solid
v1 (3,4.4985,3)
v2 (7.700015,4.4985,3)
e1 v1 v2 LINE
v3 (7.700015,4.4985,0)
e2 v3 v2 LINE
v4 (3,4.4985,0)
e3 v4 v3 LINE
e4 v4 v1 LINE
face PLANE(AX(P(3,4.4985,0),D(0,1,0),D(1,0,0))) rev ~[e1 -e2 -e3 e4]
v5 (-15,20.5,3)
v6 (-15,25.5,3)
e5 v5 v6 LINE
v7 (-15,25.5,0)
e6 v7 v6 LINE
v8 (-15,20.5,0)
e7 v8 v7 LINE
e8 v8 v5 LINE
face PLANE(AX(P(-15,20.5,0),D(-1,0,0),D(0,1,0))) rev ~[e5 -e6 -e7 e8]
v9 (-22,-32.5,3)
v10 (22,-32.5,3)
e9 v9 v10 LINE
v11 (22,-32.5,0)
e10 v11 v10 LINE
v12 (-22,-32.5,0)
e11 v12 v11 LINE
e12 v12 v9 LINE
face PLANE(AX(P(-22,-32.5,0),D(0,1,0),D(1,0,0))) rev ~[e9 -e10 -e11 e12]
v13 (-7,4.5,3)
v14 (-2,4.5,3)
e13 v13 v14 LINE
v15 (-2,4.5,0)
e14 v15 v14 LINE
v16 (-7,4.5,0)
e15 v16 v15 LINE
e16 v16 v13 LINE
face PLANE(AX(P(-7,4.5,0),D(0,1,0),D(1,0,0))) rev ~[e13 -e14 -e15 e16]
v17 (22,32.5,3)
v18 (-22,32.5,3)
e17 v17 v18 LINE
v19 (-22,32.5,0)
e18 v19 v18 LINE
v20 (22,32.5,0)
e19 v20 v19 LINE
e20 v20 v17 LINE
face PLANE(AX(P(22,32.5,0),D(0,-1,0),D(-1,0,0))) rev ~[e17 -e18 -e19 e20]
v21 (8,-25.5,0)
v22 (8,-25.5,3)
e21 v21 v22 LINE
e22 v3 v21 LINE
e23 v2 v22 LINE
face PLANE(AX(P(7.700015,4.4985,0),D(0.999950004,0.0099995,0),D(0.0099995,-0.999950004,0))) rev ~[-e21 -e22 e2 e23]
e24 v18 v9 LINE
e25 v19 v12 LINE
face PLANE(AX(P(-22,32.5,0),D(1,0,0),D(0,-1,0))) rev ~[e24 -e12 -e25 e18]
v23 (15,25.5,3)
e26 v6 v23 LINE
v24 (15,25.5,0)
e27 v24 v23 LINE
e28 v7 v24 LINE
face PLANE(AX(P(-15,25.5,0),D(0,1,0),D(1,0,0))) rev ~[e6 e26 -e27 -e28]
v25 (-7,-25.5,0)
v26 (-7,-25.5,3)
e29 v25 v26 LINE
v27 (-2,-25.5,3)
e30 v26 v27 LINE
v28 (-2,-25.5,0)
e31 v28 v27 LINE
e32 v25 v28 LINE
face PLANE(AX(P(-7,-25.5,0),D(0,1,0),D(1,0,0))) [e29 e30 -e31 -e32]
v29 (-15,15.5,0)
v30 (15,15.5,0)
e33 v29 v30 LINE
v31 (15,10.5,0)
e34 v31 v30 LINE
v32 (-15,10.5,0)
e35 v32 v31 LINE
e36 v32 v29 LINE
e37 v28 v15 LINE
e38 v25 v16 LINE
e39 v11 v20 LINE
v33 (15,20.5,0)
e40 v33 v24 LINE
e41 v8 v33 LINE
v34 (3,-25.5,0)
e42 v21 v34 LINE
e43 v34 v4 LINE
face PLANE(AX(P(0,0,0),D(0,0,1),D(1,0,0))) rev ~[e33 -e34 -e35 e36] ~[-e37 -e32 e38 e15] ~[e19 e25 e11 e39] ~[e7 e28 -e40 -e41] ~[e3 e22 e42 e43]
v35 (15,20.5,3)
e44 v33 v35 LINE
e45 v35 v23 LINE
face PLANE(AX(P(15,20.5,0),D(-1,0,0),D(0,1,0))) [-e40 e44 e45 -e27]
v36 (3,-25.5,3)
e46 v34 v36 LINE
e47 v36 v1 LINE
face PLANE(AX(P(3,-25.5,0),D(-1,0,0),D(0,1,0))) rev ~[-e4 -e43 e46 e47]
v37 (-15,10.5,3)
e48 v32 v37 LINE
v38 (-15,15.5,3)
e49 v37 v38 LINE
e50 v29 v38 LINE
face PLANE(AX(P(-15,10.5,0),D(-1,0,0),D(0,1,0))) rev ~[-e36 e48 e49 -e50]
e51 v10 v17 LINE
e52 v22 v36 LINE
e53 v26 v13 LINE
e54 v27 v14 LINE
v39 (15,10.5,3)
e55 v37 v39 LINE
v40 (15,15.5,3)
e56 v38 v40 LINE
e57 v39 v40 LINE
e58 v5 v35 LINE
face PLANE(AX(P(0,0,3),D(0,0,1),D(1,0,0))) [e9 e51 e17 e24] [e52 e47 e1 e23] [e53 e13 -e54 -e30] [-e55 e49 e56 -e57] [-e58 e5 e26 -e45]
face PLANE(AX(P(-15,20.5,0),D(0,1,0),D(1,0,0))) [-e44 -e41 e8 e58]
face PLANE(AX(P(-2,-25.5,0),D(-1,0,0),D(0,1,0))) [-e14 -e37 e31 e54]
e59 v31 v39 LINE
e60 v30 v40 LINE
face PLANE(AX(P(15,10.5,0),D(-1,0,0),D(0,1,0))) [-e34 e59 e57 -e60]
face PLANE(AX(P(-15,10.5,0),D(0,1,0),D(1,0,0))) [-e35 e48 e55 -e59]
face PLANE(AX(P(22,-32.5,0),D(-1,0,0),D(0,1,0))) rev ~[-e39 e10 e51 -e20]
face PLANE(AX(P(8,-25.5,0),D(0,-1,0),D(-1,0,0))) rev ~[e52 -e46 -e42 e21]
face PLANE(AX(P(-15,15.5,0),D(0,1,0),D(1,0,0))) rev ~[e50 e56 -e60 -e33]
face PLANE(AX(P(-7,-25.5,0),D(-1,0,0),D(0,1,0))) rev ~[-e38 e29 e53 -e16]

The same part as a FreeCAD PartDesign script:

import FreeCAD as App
import Part
import Sketcher

V = App.Vector

doc = App.newDocument("Part")
params = doc.addObject("Spreadsheet::Sheet", "Params")
for row, (alias, value) in enumerate([
    ("sketch1_width", "44 mm"),
    ("sketch1_width2", "5 mm"),
    ("sketch1_width3", "30 mm"),
    ("sketch1_height", "65 mm"),
    ("sketch1_length", "30 mm"),
    ("pad1_length", "3 mm"),
], start=1):
    params.set(f"A{row}", alias)
    params.set(f"B{row}", "=" + value)
    params.setAlias(f"B{row}", alias)

body = doc.addObject("PartDesign::Body", "Body")

sketch1 = body.newObject("Sketcher::SketchObject", "Sketch")
sketch1.AttachmentSupport = (doc.getObject("XY_Plane"), [""])
sketch1.MapMode = "FlatFace"
sketch1.addGeometry(Part.LineSegment(V(22, -32.5, 0), V(22, 32.5, 0)), False)
sketch1.addGeometry(Part.LineSegment(V(22, 32.5, 0), V(-22, 32.5, 0)), False)
sketch1.addGeometry(Part.LineSegment(V(-22, 32.5, 0), V(-22, -32.5, 0)), False)
sketch1.addGeometry(Part.LineSegment(V(-22, -32.5, 0), V(22, -32.5, 0)), False)
sketch1.addGeometry(Part.LineSegment(V(-2, -25.5, 0), V(-7, -25.5, 0)), False)
sketch1.addGeometry(Part.LineSegment(V(-7, -25.5, 0), V(-7, 4.5, 0)), False)
sketch1.addGeometry(Part.LineSegment(V(-7, 4.5, 0), V(-2, 4.5, 0)), False)
sketch1.addGeometry(Part.LineSegment(V(-2, 4.5, 0), V(-2, -25.5, 0)), False)
sketch1.addGeometry(Part.LineSegment(V(7.7, 4.5, 0), V(8, -25.5, 0)), False)
sketch1.addGeometry(Part.LineSegment(V(8, -25.5, 0), V(3, -25.5, 0)), False)
sketch1.addGeometry(Part.LineSegment(V(3, -25.5, 0), V(3, 4.5, 0)), False)
sketch1.addGeometry(Part.LineSegment(V(3, 4.5, 0), V(7.7, 4.5, 0)), False)
sketch1.addGeometry(Part.LineSegment(V(15, 10.5, 0), V(-15, 10.5, 0)), False)
sketch1.addGeometry(Part.LineSegment(V(-15, 10.5, 0), V(-15, 15.5, 0)), False)
sketch1.addGeometry(Part.LineSegment(V(-15, 15.5, 0), V(15, 15.5, 0)), False)
sketch1.addGeometry(Part.LineSegment(V(15, 15.5, 0), V(15, 10.5, 0)), False)
sketch1.addGeometry(Part.LineSegment(V(15, 20.5, 0), V(-15, 20.5, 0)), False)
sketch1.addGeometry(Part.LineSegment(V(-15, 20.5, 0), V(-15, 25.5, 0)), False)
sketch1.addGeometry(Part.LineSegment(V(-15, 25.5, 0), V(15, 25.5, 0)), False)
sketch1.addGeometry(Part.LineSegment(V(15, 25.5, 0), V(15, 20.5, 0)), False)
sketch1.addConstraint(Sketcher.Constraint("Coincident", 0, 2, 1, 1))
sketch1.addConstraint(Sketcher.Constraint("Coincident", 1, 2, 2, 1))
sketch1.addConstraint(Sketcher.Constraint("Coincident", 2, 2, 3, 1))
sketch1.addConstraint(Sketcher.Constraint("Coincident", 3, 2, 0, 1))
sketch1.addConstraint(Sketcher.Constraint("Coincident", 4, 2, 5, 1))
sketch1.addConstraint(Sketcher.Constraint("Coincident", 5, 2, 6, 1))
sketch1.addConstraint(Sketcher.Constraint("Coincident", 6, 2, 7, 1))
sketch1.addConstraint(Sketcher.Constraint("Coincident", 7, 2, 4, 1))
sketch1.addConstraint(Sketcher.Constraint("Coincident", 8, 2, 9, 1))
sketch1.addConstraint(Sketcher.Constraint("Coincident", 9, 2, 10, 1))
sketch1.addConstraint(Sketcher.Constraint("Coincident", 10, 2, 11, 1))
sketch1.addConstraint(Sketcher.Constraint("Coincident", 11, 2, 8, 1))
sketch1.addConstraint(Sketcher.Constraint("Coincident", 12, 2, 13, 1))
sketch1.addConstraint(Sketcher.Constraint("Coincident", 13, 2, 14, 1))
sketch1.addConstraint(Sketcher.Constraint("Coincident", 14, 2, 15, 1))
sketch1.addConstraint(Sketcher.Constraint("Coincident", 15, 2, 12, 1))
sketch1.addConstraint(Sketcher.Constraint("Coincident", 16, 2, 17, 1))
sketch1.addConstraint(Sketcher.Constraint("Coincident", 17, 2, 18, 1))
sketch1.addConstraint(Sketcher.Constraint("Coincident", 18, 2, 19, 1))
sketch1.addConstraint(Sketcher.Constraint("Coincident", 19, 2, 16, 1))
sketch1.addConstraint(Sketcher.Constraint("Vertical", 0))
sketch1.addConstraint(Sketcher.Constraint("Horizontal", 1))
sketch1.addConstraint(Sketcher.Constraint("Vertical", 2))
sketch1.addConstraint(Sketcher.Constraint("Horizontal", 3))
sketch1.addConstraint(Sketcher.Constraint("Horizontal", 4))
sketch1.addConstraint(Sketcher.Constraint("Vertical", 5))
sketch1.addConstraint(Sketcher.Constraint("Horizontal", 6))
sketch1.addConstraint(Sketcher.Constraint("Vertical", 7))
sketch1.addConstraint(Sketcher.Constraint("Horizontal", 9))
sketch1.addConstraint(Sketcher.Constraint("Vertical", 10))
sketch1.addConstraint(Sketcher.Constraint("Horizontal", 11))
sketch1.addConstraint(Sketcher.Constraint("Horizontal", 12))
sketch1.addConstraint(Sketcher.Constraint("Vertical", 13))
sketch1.addConstraint(Sketcher.Constraint("Horizontal", 14))
sketch1.addConstraint(Sketcher.Constraint("Vertical", 15))
sketch1.addConstraint(Sketcher.Constraint("Horizontal", 16))
sketch1.addConstraint(Sketcher.Constraint("Vertical", 17))
sketch1.addConstraint(Sketcher.Constraint("Horizontal", 18))
sketch1.addConstraint(Sketcher.Constraint("Vertical", 19))
sketch1.addConstraint(Sketcher.Constraint("Symmetric", 0, 2, 2, 2, -1, 1))
sketch1.addConstraint(Sketcher.Constraint("Horizontal", 7, 2, 8, 2))
sketch1.addConstraint(Sketcher.Constraint("Vertical", 13, 2, 16, 2))
sketch1.addConstraint(Sketcher.Constraint("Vertical", 15, 2, 18, 2))
sketch1.addConstraint(Sketcher.Constraint("Equal", 6, 9))
sketch1.addConstraint(Sketcher.Constraint("Equal", 18, 5))
sketch1.addConstraint(Sketcher.Constraint("Equal", 9, 13))
sketch1.addConstraint(Sketcher.Constraint("Equal", 15, 17))
sketch1.addConstraint(Sketcher.Constraint("DistanceX", 1, 2, 1, 1, 44.0))
sketch1.addConstraint(Sketcher.Constraint("DistanceX", 4, 2, 4, 1, 5.0))
sketch1.addConstraint(Sketcher.Constraint("DistanceX", 12, 2, 12, 1, 30.0))
sketch1.addConstraint(Sketcher.Constraint("DistanceY", 0, 1, 0, 2, 65.0))
sketch1.addConstraint(Sketcher.Constraint("Distance", 8, 30.0))
sketch1.addConstraint(Sketcher.Constraint("DistanceX", 4, 2, -1, 1, 7.0))
sketch1.addConstraint(Sketcher.Constraint("DistanceX", -1, 1, 8, 2, 8.0))
sketch1.addConstraint(Sketcher.Constraint("DistanceX", 12, 2, -1, 1, 15.0))
sketch1.addConstraint(Sketcher.Constraint("DistanceY", 2, 2, 4, 2, 7.0))
sketch1.addConstraint(Sketcher.Constraint("DistanceY", 5, 2, 12, 2, 6.0))
sketch1.addConstraint(Sketcher.Constraint("DistanceY", 13, 2, 16, 2, 5.0))
sketch1.addConstraint(Sketcher.Constraint("DistanceY", 10, 1, 10, 2, 29.9985))
sketch1.setExpression("Constraints[47]", "Params.sketch1_width")
sketch1.setExpression("Constraints[48]", "Params.sketch1_width2")
sketch1.setExpression("Constraints[49]", "Params.sketch1_width3")
sketch1.setExpression("Constraints[50]", "Params.sketch1_height")
sketch1.setExpression("Constraints[51]", "Params.sketch1_length")
pad1 = body.newObject("PartDesign::Pad", "Pad")
pad1.Profile = sketch1
pad1.setExpression("Length", "Params.pad1_length")

doc.recompute()
